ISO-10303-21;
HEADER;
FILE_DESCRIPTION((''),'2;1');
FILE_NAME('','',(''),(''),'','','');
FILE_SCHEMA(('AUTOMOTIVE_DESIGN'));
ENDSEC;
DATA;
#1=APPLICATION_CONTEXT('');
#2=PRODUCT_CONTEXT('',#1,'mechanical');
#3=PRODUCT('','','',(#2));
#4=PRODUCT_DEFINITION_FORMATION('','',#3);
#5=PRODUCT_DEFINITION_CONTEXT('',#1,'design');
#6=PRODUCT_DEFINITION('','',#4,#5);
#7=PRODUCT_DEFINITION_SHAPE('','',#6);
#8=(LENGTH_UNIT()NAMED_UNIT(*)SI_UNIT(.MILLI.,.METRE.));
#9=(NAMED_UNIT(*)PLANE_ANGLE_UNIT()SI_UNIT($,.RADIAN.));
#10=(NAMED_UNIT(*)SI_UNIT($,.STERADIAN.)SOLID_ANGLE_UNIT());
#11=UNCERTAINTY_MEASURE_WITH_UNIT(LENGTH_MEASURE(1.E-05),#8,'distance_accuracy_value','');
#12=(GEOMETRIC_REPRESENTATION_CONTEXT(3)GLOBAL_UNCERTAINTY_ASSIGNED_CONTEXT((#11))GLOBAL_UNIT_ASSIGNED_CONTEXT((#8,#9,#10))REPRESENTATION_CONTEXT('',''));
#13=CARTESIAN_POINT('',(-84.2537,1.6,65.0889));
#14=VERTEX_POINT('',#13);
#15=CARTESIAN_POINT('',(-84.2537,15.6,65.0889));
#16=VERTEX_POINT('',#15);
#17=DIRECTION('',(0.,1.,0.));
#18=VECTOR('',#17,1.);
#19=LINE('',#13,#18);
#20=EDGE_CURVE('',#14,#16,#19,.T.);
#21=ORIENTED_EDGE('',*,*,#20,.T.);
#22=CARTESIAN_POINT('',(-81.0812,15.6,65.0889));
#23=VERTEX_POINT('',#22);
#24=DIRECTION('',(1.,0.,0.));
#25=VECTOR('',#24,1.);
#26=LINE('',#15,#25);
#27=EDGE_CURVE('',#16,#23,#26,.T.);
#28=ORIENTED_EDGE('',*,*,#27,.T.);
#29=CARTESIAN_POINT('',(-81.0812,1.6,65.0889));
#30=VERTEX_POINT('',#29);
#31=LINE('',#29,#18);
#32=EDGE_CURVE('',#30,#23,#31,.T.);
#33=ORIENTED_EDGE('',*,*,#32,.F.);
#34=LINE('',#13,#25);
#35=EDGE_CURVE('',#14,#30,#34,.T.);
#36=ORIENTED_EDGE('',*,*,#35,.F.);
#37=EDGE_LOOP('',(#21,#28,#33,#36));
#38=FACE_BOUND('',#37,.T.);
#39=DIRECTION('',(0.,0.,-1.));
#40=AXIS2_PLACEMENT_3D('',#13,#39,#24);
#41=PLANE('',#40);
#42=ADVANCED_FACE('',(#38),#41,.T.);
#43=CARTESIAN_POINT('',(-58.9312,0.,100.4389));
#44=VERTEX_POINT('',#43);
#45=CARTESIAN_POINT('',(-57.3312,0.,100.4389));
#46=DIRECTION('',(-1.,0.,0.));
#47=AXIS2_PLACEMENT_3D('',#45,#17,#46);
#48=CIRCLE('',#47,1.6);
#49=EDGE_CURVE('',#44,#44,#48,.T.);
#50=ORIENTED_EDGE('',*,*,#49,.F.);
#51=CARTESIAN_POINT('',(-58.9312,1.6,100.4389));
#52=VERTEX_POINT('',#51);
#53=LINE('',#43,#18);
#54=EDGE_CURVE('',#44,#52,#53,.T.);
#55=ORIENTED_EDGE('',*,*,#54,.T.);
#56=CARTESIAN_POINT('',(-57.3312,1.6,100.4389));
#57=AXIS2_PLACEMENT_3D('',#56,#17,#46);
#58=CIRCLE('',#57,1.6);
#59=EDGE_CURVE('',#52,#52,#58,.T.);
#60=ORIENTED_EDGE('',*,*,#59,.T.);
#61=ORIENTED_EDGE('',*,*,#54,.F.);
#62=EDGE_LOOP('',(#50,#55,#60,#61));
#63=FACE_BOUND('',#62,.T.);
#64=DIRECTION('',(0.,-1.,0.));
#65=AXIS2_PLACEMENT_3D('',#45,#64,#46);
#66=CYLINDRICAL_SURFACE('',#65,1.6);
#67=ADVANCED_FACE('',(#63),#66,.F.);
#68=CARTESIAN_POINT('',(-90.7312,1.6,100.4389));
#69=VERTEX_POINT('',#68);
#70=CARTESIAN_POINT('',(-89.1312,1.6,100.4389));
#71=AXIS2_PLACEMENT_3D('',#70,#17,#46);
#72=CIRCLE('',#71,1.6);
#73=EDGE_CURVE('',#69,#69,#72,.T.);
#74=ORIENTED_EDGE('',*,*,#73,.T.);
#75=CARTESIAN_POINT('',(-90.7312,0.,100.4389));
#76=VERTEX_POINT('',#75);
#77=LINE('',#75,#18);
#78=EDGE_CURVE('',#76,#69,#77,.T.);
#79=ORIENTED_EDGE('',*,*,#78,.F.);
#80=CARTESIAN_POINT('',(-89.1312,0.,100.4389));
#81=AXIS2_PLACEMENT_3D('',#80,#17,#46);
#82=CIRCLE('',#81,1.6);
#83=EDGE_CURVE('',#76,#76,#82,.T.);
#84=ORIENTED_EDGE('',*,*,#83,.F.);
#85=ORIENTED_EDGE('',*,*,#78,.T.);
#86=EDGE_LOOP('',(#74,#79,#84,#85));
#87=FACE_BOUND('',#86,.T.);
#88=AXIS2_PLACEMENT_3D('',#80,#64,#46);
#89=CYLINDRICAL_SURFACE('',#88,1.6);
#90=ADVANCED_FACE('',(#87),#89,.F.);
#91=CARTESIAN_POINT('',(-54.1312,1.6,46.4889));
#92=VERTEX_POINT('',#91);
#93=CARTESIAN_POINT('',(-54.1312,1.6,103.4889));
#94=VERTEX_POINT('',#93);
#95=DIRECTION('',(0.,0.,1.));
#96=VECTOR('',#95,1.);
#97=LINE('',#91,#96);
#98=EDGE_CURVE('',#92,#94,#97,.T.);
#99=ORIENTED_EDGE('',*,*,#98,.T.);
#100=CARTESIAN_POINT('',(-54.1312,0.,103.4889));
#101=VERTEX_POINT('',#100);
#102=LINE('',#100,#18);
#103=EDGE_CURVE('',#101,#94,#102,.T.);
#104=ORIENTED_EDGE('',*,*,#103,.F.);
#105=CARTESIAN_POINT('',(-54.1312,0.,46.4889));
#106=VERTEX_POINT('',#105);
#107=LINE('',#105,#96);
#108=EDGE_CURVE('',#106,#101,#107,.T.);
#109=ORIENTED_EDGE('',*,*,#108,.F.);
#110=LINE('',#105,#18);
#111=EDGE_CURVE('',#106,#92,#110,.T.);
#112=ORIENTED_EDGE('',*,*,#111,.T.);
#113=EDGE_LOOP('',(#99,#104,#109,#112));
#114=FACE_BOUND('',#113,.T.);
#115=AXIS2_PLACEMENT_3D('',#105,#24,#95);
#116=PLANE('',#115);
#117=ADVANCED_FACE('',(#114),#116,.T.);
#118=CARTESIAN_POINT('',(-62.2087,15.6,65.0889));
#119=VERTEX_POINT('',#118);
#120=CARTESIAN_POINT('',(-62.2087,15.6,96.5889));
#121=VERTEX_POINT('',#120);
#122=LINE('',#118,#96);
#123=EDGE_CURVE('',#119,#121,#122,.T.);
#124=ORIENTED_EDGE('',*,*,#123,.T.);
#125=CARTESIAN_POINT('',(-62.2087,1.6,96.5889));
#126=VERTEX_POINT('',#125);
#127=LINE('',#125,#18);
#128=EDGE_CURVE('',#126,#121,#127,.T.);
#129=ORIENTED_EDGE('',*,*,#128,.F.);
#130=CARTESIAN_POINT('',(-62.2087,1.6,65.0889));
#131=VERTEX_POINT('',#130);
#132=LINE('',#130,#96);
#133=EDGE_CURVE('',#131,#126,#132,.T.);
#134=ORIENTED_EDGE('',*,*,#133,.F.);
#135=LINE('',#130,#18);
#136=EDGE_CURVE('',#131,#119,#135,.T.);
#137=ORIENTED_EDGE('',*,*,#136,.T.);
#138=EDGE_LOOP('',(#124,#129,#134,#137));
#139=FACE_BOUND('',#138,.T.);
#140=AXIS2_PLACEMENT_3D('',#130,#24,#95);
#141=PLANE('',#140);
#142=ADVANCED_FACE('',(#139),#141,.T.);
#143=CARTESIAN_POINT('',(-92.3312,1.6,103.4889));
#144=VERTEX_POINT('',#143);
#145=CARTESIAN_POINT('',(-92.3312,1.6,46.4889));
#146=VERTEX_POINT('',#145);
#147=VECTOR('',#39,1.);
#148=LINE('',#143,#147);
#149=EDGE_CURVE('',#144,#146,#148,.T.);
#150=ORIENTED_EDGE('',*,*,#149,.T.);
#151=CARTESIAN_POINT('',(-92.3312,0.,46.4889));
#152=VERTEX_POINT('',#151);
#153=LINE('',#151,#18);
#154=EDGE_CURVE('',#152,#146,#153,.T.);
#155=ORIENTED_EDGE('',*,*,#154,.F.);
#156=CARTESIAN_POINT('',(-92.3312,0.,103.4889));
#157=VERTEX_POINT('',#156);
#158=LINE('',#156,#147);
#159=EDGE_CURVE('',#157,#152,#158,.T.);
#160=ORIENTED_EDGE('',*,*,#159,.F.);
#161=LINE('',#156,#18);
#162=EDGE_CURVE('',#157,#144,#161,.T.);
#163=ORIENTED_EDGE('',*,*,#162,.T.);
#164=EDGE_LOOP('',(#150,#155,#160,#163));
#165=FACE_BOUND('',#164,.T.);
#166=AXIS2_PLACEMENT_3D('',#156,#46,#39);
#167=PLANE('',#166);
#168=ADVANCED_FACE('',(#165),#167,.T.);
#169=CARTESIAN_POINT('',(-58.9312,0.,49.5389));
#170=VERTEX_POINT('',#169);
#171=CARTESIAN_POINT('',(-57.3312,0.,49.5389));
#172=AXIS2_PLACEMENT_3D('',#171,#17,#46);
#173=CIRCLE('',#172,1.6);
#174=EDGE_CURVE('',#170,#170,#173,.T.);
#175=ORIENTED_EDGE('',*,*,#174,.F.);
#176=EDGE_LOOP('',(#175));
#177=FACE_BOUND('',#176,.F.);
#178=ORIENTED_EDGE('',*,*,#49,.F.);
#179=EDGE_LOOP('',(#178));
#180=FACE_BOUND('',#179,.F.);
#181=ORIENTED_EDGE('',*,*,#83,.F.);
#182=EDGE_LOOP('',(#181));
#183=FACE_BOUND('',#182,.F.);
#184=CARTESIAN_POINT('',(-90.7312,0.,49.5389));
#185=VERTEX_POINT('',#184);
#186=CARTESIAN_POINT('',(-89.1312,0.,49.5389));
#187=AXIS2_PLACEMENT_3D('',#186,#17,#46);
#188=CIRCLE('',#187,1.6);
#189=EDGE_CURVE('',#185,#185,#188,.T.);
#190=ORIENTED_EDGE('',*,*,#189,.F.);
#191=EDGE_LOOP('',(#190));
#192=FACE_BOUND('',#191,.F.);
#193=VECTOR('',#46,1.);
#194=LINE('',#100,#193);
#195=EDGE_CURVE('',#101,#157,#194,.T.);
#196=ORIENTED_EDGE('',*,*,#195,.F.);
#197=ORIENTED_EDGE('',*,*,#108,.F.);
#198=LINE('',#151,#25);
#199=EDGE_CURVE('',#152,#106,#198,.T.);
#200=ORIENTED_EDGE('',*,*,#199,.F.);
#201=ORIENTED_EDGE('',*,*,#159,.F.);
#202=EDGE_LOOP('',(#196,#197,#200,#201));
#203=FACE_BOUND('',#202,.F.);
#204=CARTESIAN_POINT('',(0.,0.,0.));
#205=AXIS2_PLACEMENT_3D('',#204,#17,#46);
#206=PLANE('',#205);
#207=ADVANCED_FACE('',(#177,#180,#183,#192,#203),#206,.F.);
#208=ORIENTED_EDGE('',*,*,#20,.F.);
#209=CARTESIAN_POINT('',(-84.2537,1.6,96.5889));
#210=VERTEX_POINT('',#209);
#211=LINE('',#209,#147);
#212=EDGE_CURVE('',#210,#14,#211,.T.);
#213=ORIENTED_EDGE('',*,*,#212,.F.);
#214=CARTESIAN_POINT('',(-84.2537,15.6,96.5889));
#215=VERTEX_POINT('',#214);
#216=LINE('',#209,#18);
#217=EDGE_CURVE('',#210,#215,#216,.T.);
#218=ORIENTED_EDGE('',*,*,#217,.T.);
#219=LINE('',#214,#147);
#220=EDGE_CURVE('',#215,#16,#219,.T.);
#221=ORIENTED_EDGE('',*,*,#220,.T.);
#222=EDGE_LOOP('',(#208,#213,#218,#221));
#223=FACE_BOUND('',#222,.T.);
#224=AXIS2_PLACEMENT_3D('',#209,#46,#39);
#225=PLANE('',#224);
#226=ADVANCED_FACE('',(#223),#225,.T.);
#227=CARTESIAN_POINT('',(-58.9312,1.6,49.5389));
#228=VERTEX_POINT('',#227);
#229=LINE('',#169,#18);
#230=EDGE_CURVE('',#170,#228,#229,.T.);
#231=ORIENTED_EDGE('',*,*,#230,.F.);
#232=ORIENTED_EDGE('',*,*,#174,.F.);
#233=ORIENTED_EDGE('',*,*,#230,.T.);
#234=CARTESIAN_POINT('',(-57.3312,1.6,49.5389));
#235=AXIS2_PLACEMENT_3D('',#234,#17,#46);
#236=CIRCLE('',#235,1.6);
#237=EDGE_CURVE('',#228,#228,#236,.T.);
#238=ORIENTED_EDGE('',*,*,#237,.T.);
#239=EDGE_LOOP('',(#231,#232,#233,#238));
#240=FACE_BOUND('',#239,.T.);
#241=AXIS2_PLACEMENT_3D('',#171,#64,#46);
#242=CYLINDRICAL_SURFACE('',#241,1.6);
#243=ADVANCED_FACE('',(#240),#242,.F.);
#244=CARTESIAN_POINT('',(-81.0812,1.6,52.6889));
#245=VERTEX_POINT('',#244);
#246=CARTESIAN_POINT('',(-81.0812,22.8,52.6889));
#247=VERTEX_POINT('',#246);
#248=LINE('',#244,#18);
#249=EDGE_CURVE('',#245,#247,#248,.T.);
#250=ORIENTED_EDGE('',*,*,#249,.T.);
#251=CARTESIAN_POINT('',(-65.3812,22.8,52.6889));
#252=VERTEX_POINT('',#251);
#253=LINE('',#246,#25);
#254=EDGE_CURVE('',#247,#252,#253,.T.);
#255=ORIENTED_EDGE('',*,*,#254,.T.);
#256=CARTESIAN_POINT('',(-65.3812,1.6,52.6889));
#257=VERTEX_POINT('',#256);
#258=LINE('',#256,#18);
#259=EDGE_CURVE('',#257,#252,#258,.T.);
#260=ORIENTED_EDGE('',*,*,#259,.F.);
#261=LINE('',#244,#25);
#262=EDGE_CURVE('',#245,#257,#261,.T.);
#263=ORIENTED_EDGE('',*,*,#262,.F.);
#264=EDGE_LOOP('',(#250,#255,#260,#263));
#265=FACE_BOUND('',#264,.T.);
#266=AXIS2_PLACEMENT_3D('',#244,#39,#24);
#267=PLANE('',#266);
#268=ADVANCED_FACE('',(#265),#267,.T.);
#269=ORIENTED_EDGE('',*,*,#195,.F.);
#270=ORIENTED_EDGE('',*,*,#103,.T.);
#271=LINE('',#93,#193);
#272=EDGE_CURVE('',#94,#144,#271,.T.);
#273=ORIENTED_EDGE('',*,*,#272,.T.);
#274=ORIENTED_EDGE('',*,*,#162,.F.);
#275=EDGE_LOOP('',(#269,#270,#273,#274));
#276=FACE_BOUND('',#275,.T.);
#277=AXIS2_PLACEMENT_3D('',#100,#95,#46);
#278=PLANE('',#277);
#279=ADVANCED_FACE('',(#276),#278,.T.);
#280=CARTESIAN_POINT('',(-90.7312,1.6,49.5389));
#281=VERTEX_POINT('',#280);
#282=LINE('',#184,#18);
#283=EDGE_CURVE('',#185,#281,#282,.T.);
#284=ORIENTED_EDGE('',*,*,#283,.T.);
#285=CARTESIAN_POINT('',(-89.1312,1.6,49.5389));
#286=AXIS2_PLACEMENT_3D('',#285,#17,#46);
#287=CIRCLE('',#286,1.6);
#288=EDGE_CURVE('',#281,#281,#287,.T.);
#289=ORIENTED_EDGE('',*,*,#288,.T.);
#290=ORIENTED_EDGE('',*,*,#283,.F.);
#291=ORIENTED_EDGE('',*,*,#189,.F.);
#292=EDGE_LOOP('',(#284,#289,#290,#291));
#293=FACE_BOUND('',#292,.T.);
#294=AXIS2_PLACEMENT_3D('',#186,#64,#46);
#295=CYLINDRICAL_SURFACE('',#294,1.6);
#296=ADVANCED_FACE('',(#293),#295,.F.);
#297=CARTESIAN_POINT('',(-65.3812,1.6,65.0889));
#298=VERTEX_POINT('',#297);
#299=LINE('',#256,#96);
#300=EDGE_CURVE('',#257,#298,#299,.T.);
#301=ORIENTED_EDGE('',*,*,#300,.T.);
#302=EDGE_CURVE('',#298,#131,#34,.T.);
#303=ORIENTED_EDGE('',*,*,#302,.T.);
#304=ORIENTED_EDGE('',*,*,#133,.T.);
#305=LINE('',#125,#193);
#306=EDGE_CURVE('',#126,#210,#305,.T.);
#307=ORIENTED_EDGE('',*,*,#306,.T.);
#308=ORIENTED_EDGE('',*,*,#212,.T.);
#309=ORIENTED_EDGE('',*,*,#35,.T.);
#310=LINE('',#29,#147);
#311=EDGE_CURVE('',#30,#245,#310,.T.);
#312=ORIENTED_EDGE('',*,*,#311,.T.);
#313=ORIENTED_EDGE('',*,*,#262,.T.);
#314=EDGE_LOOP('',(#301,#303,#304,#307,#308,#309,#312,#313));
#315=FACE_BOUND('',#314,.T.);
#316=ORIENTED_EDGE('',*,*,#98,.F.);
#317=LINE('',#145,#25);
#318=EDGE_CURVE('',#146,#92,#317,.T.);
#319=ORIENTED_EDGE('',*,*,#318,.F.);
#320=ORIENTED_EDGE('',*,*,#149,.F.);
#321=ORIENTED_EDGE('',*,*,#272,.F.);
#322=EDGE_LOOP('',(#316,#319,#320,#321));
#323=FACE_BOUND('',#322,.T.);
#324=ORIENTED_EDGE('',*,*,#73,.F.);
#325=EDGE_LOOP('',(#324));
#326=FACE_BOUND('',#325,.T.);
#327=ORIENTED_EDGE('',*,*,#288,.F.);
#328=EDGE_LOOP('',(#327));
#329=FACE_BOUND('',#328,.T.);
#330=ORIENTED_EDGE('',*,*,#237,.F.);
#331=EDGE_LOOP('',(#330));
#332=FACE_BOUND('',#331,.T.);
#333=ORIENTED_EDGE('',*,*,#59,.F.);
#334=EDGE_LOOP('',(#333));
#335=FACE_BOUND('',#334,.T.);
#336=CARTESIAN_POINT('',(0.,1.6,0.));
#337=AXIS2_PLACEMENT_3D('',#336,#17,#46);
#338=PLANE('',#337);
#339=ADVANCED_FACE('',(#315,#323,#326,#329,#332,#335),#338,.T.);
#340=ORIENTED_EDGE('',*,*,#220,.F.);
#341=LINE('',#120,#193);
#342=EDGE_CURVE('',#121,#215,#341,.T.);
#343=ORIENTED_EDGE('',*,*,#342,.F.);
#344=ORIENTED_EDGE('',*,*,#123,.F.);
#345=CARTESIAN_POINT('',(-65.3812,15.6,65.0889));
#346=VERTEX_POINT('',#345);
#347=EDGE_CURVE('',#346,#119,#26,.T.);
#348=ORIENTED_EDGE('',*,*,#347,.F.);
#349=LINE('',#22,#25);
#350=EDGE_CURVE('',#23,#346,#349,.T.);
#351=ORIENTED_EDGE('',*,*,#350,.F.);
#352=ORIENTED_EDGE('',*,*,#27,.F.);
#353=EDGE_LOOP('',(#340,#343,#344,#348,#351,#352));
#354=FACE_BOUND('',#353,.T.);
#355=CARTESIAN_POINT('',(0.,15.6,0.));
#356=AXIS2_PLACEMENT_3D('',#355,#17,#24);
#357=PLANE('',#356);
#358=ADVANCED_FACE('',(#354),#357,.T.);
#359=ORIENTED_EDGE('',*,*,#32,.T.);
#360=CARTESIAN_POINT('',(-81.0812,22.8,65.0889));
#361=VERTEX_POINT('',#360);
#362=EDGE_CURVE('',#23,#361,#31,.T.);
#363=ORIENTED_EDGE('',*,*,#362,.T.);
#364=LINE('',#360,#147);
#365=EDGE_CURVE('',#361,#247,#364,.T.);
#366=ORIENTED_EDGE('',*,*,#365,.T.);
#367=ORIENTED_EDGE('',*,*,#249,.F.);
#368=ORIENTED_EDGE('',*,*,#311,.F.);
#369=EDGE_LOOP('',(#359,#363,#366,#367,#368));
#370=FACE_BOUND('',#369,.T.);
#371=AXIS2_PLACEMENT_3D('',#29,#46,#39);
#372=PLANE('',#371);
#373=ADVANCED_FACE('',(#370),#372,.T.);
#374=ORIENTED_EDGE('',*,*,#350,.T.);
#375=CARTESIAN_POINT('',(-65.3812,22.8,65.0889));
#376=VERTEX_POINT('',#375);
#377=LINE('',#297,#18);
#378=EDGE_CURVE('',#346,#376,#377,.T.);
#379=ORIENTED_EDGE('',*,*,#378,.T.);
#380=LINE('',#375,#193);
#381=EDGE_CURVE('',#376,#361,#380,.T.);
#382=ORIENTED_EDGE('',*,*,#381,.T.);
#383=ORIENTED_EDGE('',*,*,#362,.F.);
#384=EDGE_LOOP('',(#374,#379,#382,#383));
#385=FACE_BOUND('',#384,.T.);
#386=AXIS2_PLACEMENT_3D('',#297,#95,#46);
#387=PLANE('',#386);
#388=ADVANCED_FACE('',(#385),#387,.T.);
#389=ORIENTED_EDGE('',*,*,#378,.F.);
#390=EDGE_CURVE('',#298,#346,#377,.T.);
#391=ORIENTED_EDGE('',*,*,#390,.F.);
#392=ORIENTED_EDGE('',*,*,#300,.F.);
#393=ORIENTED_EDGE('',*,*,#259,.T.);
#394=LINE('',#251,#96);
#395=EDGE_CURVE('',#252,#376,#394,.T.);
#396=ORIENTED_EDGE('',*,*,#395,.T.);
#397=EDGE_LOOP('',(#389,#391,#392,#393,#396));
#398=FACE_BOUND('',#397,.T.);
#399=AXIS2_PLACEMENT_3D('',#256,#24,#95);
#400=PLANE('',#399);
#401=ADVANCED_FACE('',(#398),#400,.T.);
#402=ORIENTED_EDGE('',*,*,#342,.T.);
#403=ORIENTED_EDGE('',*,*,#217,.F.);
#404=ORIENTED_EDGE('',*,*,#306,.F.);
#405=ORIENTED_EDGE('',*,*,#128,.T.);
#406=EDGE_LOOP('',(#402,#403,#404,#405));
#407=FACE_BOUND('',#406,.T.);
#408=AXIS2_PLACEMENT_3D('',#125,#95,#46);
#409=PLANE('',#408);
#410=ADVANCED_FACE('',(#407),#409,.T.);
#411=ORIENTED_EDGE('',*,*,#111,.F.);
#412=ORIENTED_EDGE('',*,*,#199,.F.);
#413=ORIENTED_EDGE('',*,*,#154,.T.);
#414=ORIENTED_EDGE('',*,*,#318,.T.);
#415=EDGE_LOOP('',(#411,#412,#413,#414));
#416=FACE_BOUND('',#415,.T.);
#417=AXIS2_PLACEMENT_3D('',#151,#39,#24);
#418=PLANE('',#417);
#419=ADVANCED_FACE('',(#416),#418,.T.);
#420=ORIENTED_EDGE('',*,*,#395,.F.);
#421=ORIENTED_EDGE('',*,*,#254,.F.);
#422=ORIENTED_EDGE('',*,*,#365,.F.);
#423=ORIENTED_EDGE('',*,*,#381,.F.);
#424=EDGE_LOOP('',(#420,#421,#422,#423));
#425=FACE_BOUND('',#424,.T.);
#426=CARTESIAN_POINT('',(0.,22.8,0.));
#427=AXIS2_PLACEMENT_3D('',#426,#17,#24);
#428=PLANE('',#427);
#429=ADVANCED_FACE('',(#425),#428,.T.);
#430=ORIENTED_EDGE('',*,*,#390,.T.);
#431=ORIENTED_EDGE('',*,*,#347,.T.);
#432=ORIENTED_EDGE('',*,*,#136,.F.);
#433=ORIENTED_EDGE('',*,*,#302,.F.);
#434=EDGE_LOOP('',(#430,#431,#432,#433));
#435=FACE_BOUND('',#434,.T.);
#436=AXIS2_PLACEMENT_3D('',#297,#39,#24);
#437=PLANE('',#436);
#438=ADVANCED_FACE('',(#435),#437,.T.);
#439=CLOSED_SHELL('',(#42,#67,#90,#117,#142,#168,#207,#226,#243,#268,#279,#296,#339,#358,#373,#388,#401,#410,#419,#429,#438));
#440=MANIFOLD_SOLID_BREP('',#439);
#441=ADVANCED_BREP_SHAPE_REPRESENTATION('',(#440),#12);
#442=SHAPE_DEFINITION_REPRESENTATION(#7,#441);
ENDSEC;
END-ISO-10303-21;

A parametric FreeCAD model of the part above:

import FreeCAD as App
import Part
import Sketcher


def add_polygon(sketch, points):
    """Adds a closed chain of lines whose ends are joined by coincident constraints."""
    first, n = sketch.GeometryCount, len(points)
    for a, b in zip(points, points[1:] + points[:1]):
        sketch.addGeometry(Part.LineSegment(App.Vector(*a, 0), App.Vector(*b, 0)), False)
    for i in range(n):
        sketch.addConstraint(Sketcher.Constraint("Coincident", first + i, 2, first + (i + 1) % n, 1))

doc = App.newDocument("Part")
body = doc.addObject("PartDesign::Body", "Body")

# Sketch on XZ plane
sketch1 = doc.addObject("Sketcher::SketchObject", "Sketch")
body.addObject(sketch1)
sketch1.AttachmentSupport = (doc.XZ_Plane, [""])
sketch1.MapMode = "FlatFace"
add_polygon(sketch1, [(-54.1, 46.5), (-92.3, 46.5), (-92.3, 103.5), (-54.1, 103.5)])  # lines 0-3
sketch1.addGeometry(Part.Circle(App.Vector(-57.3, 49.5, 0), App.Vector(0, 0, 1), 1.6), False)  # 4
sketch1.addGeometry(Part.Circle(App.Vector(-89.1, 49.5, 0), App.Vector(0, 0, 1), 1.6), False)  # 5
sketch1.addGeometry(Part.Circle(App.Vector(-57.3, 100.4, 0), App.Vector(0, 0, 1), 1.6), False)  # 6
sketch1.addGeometry(Part.Circle(App.Vector(-89.1, 100.4, 0), App.Vector(0, 0, 1), 1.6), False)  # 7
sketch1.addConstraint([
    Sketcher.Constraint("Horizontal", 0),
    Sketcher.Constraint("Vertical", 1),
    Sketcher.Constraint("Horizontal", 2),
    Sketcher.Constraint("Vertical", 3),
    Sketcher.Constraint("Equal", 4, 5),
    Sketcher.Constraint("Equal", 5, 6),
    Sketcher.Constraint("Equal", 6, 7),
    Sketcher.Constraint("Horizontal", 4, 3, 5, 3),
    Sketcher.Constraint("Horizontal", 6, 3, 7, 3),
    Sketcher.Constraint("Vertical", 4, 3, 6, 3),
    Sketcher.Constraint("Vertical", 5, 3, 7, 3),
    Sketcher.Constraint("Diameter", 4, 3.2),
    Sketcher.Constraint("DistanceY", 1, 1, 1, 2, 57.0),
    Sketcher.Constraint("DistanceX", 0, 2, 0, 1, 38.2),
    Sketcher.Constraint("DistanceX", 0, 2, 5, 3, 3.2),
    Sketcher.Constraint("DistanceX", 6, 3, 2, 2, 3.2),
    Sketcher.Constraint("DistanceY", 0, 2, 5, 3, 3.05),
    Sketcher.Constraint("DistanceY", 7, 3, 1, 2, 3.05),
    Sketcher.Constraint("DistanceY", -1, 1, 4, 3, 49.539),
    Sketcher.Constraint("DistanceX", 4, 3, -1, 1, 57.3312),
])
pad1 = doc.addObject("PartDesign::Pad", "Pad")
body.addObject(pad1)
pad1.Profile = sketch1
pad1.Length = 1.6
pad1.Reversed = True

# Sketch on XZ plane
sketch2 = doc.addObject("Sketcher::SketchObject", "Sketch001")
body.addObject(sketch2)
sketch2.AttachmentSupport = (doc.XZ_Plane, [""])
sketch2.MapMode = "FlatFace"
sketch2.AttachmentOffset = App.Placement(App.Vector(0, 0, -1.6), App.Rotation())
add_polygon(sketch2, [(-65, 53), (-81, 53), (-81, 65), (-65, 65)])  # lines 0-3
sketch2.addConstraint([
    Sketcher.Constraint("Horizontal", 0),
    Sketcher.Constraint("Vertical", 1),
    Sketcher.Constraint("Horizontal", 2),
    Sketcher.Constraint("Vertical", 3),
    Sketcher.Constraint("DistanceX", 0, 2, 0, 1, 15.7),
    Sketcher.Constraint("DistanceY", 1, 1, 1, 2, 12.4),
    Sketcher.Constraint("DistanceY", -1, 1, 0, 2, 52.689),
    Sketcher.Constraint("DistanceX", 0, 2, -1, 1, 81.0812),
])
pad2 = doc.addObject("PartDesign::Pad", "Pad001")
body.addObject(pad2)
pad2.Profile = sketch2
pad2.Length = 21.2
pad2.Reversed = True

# Sketch on XZ plane
sketch3 = doc.addObject("Sketcher::SketchObject", "Sketch002")
body.addObject(sketch3)
sketch3.AttachmentSupport = (doc.XZ_Plane, [""])
sketch3.MapMode = "FlatFace"
sketch3.AttachmentOffset = App.Placement(App.Vector(0, 0, -1.6), App.Rotation())
add_polygon(sketch3, [(-62, 65), (-84, 65), (-84, 97), (-62, 97)])  # lines 0-3
sketch3.addConstraint([
    Sketcher.Constraint("Horizontal", 0),
    Sketcher.Constraint("Vertical", 1),
    Sketcher.Constraint("Horizontal", 2),
    Sketcher.Constraint("Vertical", 3),
    Sketcher.Constraint("DistanceY", 1, 1, 1, 2, 31.5),
    Sketcher.Constraint("DistanceX", 0, 2, 0, 1, 22.045),
    Sketcher.Constraint("DistanceY", -1, 1, 0, 2, 65.089),
    Sketcher.Constraint("DistanceX", 0, 2, -1, 1, 84.2537),
])
pad3 = doc.addObject("PartDesign::Pad", "Pad002")
body.addObject(pad3)
pad3.Profile = sketch3
pad3.Length = 14
pad3.Reversed = True

doc.recompute()
